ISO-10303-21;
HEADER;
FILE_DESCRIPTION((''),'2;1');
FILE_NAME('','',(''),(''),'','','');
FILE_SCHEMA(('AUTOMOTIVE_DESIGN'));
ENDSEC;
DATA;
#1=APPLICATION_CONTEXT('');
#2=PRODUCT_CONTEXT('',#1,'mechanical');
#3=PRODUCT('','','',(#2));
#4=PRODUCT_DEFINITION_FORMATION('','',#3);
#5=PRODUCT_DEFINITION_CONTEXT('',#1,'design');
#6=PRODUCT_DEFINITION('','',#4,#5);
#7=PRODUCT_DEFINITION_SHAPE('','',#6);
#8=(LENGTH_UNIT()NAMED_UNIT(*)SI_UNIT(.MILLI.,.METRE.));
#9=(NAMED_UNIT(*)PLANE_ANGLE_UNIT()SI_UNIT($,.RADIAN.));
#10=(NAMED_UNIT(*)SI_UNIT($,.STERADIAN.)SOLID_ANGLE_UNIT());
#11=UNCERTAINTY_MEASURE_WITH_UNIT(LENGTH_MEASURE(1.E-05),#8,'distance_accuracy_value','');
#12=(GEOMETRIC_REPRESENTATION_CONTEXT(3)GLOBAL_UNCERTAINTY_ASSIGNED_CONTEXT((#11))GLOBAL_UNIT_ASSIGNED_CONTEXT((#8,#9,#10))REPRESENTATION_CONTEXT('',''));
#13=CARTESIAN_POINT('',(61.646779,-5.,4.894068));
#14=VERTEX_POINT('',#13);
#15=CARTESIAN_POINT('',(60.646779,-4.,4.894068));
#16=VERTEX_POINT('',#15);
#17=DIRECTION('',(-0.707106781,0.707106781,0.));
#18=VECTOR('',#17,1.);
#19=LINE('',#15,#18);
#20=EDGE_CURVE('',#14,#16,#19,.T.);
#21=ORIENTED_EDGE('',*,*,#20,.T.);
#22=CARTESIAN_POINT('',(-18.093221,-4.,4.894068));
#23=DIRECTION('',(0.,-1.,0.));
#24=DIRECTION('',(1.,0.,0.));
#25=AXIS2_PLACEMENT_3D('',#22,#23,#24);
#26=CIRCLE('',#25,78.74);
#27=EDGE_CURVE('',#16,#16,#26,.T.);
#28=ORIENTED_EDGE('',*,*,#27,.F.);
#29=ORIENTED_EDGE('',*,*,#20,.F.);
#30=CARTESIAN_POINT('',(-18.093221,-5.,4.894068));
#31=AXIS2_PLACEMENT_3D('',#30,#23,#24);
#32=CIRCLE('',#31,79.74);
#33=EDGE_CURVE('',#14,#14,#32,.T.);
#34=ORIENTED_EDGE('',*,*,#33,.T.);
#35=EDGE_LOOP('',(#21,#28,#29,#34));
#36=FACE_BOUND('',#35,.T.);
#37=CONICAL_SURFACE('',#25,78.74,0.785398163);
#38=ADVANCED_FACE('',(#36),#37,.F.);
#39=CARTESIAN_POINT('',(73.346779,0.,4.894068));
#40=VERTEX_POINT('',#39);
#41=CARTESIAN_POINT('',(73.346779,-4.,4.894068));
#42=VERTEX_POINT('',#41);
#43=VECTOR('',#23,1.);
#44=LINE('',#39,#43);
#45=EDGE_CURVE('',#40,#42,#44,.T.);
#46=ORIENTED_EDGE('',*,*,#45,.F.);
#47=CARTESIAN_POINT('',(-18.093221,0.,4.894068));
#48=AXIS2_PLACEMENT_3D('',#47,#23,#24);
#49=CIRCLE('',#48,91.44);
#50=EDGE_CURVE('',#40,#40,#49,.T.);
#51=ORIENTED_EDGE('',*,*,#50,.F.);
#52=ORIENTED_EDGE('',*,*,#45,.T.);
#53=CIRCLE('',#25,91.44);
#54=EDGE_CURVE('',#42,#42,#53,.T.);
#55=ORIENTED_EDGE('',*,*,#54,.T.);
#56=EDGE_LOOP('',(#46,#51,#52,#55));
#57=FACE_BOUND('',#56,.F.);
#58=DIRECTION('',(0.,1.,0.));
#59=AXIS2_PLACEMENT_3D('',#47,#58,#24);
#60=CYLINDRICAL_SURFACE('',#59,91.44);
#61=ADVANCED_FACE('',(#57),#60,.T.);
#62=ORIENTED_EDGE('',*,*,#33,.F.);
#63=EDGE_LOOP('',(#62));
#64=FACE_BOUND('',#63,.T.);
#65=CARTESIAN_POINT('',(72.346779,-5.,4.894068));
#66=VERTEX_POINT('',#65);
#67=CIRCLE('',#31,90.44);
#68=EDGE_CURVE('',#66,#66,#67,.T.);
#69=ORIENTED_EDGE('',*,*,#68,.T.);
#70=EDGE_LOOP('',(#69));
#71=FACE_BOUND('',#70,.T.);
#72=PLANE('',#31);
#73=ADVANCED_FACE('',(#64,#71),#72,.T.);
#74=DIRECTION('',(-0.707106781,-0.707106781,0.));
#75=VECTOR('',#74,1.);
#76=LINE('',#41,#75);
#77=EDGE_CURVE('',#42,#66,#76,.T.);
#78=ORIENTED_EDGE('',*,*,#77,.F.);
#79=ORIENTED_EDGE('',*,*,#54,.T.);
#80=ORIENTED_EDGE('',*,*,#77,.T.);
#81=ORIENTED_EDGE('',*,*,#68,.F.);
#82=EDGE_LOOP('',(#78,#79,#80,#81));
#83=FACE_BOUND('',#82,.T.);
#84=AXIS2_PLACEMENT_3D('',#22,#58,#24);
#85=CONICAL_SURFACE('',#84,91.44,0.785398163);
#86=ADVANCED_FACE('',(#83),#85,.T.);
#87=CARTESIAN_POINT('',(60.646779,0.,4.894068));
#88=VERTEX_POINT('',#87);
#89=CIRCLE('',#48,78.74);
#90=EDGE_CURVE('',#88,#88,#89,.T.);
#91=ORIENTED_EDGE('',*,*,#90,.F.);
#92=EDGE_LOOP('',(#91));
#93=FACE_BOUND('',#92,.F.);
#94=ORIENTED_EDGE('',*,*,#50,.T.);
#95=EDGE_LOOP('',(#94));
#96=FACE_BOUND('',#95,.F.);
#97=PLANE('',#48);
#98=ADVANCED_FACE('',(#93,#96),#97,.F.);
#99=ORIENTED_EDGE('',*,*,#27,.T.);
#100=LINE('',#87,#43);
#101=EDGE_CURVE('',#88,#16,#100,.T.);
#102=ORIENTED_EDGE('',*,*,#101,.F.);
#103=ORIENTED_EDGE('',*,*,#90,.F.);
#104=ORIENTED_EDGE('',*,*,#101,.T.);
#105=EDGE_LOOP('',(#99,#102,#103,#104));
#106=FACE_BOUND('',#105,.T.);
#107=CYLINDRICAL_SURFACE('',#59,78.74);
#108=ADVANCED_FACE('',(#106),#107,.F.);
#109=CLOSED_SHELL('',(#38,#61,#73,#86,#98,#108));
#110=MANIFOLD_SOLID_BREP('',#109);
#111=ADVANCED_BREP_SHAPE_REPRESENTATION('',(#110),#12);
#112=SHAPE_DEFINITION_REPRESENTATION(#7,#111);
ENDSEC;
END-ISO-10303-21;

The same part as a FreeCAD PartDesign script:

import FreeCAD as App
import Part
import Sketcher
from FreeCAD import Vector
Q = App.Units.Quantity


def edges_at(feature, points):
    """Names of the edges that pass closest to the given points."""
    edges = feature.Shape.Edges
    near = lambda p: min(range(len(edges)), key=lambda i: edges[i].distToShape(Part.Vertex(*p))[0])
    return sorted({f"Edge{near(p) + 1}" for p in points})

doc = App.newDocument("Part")
body = doc.addObject("PartDesign::Body", "Body")

# Sketch on XZ plane
sketch1 = body.newObject("Sketcher::SketchObject", "Sketch")
sketch1.AttachmentSupport = (doc.getObject("XZ_Plane"), [""])
sketch1.MapMode = "FlatFace"
sketch1.addGeometry([
    Part.Circle(Vector(-18.093221, 4.894068, 0), Vector(0, 0, 1), 91.44),
    Part.Circle(Vector(-18.093221, 4.894068, 0), Vector(0, 0, 1), 78.74),
], False)
sketch1.addConstraint([
    Sketcher.Constraint("Coincident", 1, 3, 0, 3),
    Sketcher.Constraint("Diameter", 0, Q("182.88 mm")),
    Sketcher.Constraint("Diameter", 1, Q("157.48 mm")),
    Sketcher.Constraint("DistanceX", 0, 3, -1, 1, Q("18.093221 mm")),
    Sketcher.Constraint("DistanceY", -1, 1, 0, 3, Q("4.894068 mm")),
])
pad1 = body.newObject("PartDesign::Pad", "Pad")
pad1.Profile = sketch1
pad1.Length = 5
doc.recompute()

chamfer = body.newObject("PartDesign::Chamfer", "Chamfer")
chamfer.Base = (pad1, edges_at(pad1, [(-109.533, -5, 4.894)]))
chamfer.Size = 1
doc.recompute()

chamfer2 = body.newObject("PartDesign::Chamfer", "Chamfer001")
chamfer2.Base = (chamfer, edges_at(chamfer, [(-96.833, -5, 4.894)]))
chamfer2.Size = 1

doc.recompute()
